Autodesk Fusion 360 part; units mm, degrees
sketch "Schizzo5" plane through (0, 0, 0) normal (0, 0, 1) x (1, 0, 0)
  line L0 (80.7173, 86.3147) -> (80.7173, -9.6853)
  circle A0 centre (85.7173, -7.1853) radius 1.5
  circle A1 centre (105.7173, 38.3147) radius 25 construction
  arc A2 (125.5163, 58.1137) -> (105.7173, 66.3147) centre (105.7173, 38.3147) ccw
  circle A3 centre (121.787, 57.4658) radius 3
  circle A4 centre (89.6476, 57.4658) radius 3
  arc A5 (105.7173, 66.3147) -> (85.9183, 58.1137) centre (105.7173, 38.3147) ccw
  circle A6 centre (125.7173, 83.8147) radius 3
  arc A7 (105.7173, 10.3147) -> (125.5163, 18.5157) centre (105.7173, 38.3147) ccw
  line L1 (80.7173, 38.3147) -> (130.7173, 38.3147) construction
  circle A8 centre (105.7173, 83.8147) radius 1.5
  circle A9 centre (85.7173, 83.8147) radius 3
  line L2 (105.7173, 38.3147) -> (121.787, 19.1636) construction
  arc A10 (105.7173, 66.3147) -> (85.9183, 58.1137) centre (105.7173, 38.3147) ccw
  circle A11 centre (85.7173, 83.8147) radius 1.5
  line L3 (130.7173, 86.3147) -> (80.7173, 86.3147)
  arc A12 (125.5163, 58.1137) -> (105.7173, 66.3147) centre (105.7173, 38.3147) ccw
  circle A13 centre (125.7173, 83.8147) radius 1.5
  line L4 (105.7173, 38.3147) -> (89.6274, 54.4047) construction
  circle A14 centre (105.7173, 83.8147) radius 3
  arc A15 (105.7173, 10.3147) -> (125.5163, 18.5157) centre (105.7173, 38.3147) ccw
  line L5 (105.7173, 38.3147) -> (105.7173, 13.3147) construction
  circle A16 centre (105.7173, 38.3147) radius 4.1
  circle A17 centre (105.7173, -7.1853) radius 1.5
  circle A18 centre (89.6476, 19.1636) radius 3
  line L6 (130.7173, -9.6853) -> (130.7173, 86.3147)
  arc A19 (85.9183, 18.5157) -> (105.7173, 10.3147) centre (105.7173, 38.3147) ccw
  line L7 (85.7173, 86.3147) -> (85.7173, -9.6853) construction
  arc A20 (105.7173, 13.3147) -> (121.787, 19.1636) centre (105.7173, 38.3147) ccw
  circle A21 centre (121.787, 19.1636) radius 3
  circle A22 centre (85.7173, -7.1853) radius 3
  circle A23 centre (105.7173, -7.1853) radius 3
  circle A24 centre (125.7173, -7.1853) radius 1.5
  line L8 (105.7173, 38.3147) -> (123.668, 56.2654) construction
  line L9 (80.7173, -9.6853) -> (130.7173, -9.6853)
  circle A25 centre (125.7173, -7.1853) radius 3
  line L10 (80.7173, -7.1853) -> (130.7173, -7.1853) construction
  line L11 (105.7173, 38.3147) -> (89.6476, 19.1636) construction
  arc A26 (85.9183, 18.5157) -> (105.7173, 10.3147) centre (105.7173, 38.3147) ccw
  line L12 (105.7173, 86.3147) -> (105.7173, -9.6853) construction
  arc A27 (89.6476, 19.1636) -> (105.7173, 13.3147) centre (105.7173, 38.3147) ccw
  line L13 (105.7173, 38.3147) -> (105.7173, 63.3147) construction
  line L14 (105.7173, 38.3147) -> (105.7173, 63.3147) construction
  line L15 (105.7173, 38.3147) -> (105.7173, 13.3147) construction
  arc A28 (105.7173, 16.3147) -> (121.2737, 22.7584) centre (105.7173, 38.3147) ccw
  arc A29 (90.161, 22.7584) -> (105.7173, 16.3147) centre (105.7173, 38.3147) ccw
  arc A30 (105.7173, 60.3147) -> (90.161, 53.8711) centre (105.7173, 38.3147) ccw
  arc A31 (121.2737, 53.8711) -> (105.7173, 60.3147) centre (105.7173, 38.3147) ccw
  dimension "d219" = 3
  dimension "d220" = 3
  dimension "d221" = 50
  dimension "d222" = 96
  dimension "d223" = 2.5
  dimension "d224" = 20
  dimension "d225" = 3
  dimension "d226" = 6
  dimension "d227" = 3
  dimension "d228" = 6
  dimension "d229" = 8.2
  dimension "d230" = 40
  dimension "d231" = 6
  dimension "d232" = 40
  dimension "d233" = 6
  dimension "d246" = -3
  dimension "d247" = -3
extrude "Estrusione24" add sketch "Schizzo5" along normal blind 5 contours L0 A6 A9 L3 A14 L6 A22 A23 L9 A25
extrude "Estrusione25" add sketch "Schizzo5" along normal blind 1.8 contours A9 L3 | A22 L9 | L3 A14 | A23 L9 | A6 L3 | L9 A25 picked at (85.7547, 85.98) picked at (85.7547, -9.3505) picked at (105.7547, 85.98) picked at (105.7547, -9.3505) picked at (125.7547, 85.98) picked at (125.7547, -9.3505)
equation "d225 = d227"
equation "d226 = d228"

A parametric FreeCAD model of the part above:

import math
import FreeCAD as App
import Part
import Sketcher
from FreeCAD import Vector

doc = App.newDocument("Part")
body = doc.addObject("PartDesign::Body", "Body")

sketch1 = body.newObject("Sketcher::SketchObject", "Sketch")
sketch1.AttachmentSupport = (doc.getObject("XY_Plane"), [""])
sketch1.MapMode = "FlatFace"
sketch1.addGeometry(Part.LineSegment(Vector(84.1, 86.3, 0), Vector(80.7, 86.3, 0)), False)
sketch1.addGeometry(Part.LineSegment(Vector(80.7, 86.3, 0), Vector(80.7, -9.7, 0)), False)
sketch1.addGeometry(Part.LineSegment(Vector(80.7, -9.7, 0), Vector(84.1, -9.7, 0)), False)
sketch1.addGeometry(Part.ArcOfCircle(Part.Circle(Vector(85.7, -7.2, 0), Vector(0, 0, 1), 3), math.radians(-56), math.radians(236)), False)
sketch1.addGeometry(Part.LineSegment(Vector(87.4, -9.7, 0), Vector(104.1, -9.7, 0)), False)
sketch1.addGeometry(Part.ArcOfCircle(Part.Circle(Vector(105.7, -7.2, 0), Vector(0, 0, 1), 3), math.radians(-56), math.radians(236)), False)
sketch1.addGeometry(Part.LineSegment(Vector(107.4, -9.7, 0), Vector(124.1, -9.7, 0)), False)
sketch1.addGeometry(Part.ArcOfCircle(Part.Circle(Vector(125.7, -7.2, 0), Vector(0, 0, 1), 3), math.radians(-56), math.radians(236)), False)
sketch1.addGeometry(Part.LineSegment(Vector(127.4, -9.7, 0), Vector(130.7, -9.7, 0)), False)
sketch1.addGeometry(Part.LineSegment(Vector(130.7, -9.7, 0), Vector(130.7, 86.3, 0)), False)
sketch1.addGeometry(Part.LineSegment(Vector(130.7, 86.3, 0), Vector(127.4, 86.3, 0)), False)
sketch1.addGeometry(Part.ArcOfCircle(Part.Circle(Vector(125.7, 83.8, 0), Vector(0, 0, 1), 3), math.radians(124), math.radians(416)), False)
sketch1.addGeometry(Part.LineSegment(Vector(124.1, 86.3, 0), Vector(107.4, 86.3, 0)), False)
sketch1.addGeometry(Part.ArcOfCircle(Part.Circle(Vector(105.7, 83.8, 0), Vector(0, 0, 1), 3), math.radians(124), math.radians(416)), False)
sketch1.addGeometry(Part.LineSegment(Vector(104.1, 86.3, 0), Vector(87.4, 86.3, 0)), False)
sketch1.addGeometry(Part.ArcOfCircle(Part.Circle(Vector(85.7, 83.8, 0), Vector(0, 0, 1), 3), math.radians(124), math.radians(416)), False)
sketch1.addGeometry(Part.ArcOfCircle(Part.Circle(Vector(105.7, 38.3, 0), Vector(0, 0, 1), 28), math.radians(-90), math.radians(-50)), False)
sketch1.addGeometry(Part.ArcOfCircle(Part.Circle(Vector(105.7, 38.3, 0), Vector(0, 0, 1), 28), math.radians(-130), math.radians(-90)), False)
sketch1.addGeometry(Part.ArcOfCircle(Part.Circle(Vector(89.6, 19.2, 0), Vector(0, 0, 1), 3), math.radians(50), math.radians(230)), False)
sketch1.addGeometry(Part.ArcOfCircle(Part.Circle(Vector(105.7, 38.3, 0), Vector(0, 0, 1), 22), math.radians(-130), math.radians(-90)), False)
sketch1.addGeometry(Part.ArcOfCircle(Part.Circle(Vector(105.7, 38.3, 0), Vector(0, 0, 1), 22), math.radians(-90), math.radians(-50)), False)
sketch1.addGeometry(Part.ArcOfCircle(Part.Circle(Vector(121.8, 19.2, 0), Vector(0, 0, 1), 3), math.radians(-50), math.radians(130)), False)
sketch1.addGeometry(Part.Circle(Vector(105.7, 38.3, 0), Vector(0, 0, 1), 4.1), False)
sketch1.addGeometry(Part.ArcOfCircle(Part.Circle(Vector(105.7, 38.3, 0), Vector(0, 0, 1), 28), math.radians(50), math.radians(90)), False)
sketch1.addGeometry(Part.ArcOfCircle(Part.Circle(Vector(121.8, 57.5, 0), Vector(0, 0, 1), 3), math.radians(-130), math.radians(50)), False)
sketch1.addGeometry(Part.ArcOfCircle(Part.Circle(Vector(105.7, 38.3, 0), Vector(0, 0, 1), 22), math.radians(50), math.radians(90)), False)
sketch1.addGeometry(Part.ArcOfCircle(Part.Circle(Vector(105.7, 38.3, 0), Vector(0, 0, 1), 22), math.radians(90), math.radians(130)), False)
sketch1.addGeometry(Part.ArcOfCircle(Part.Circle(Vector(89.6, 57.5, 0), Vector(0, 0, 1), 3), math.radians(130), math.radians(310)), False)
sketch1.addGeometry(Part.ArcOfCircle(Part.Circle(Vector(105.7, 38.3, 0), Vector(0, 0, 1), 28), math.radians(90), math.radians(130)), False)
sketch1.addConstraint(Sketcher.Constraint("Coincident", 0, 2, 1, 1))
sketch1.addConstraint(Sketcher.Constraint("Coincident", 1, 2, 2, 1))
sketch1.addConstraint(Sketcher.Constraint("Coincident", 2, 2, 3, 2))
sketch1.addConstraint(Sketcher.Constraint("Coincident", 3, 1, 4, 1))
sketch1.addConstraint(Sketcher.Constraint("Coincident", 4, 2, 5, 2))
sketch1.addConstraint(Sketcher.Constraint("Coincident", 5, 1, 6, 1))
sketch1.addConstraint(Sketcher.Constraint("Coincident", 6, 2, 7, 2))
sketch1.addConstraint(Sketcher.Constraint("Coincident", 7, 1, 8, 1))
sketch1.addConstraint(Sketcher.Constraint("Coincident", 8, 2, 9, 1))
sketch1.addConstraint(Sketcher.Constraint("Coincident", 9, 2, 10, 1))
sketch1.addConstraint(Sketcher.Constraint("Coincident", 10, 2, 11, 2))
sketch1.addConstraint(Sketcher.Constraint("Coincident", 11, 1, 12, 1))
sketch1.addConstraint(Sketcher.Constraint("Coincident", 12, 2, 13, 2))
sketch1.addConstraint(Sketcher.Constraint("Coincident", 13, 1, 14, 1))
sketch1.addConstraint(Sketcher.Constraint("Coincident", 14, 2, 15, 2))
sketch1.addConstraint(Sketcher.Constraint("Coincident", 15, 1, 0, 1))
sketch1.addConstraint(Sketcher.Constraint("Tangent", 16, 1, 17, 2))
sketch1.addConstraint(Sketcher.Constraint("Tangent", 17, 1, 18, 2))
sketch1.addConstraint(Sketcher.Constraint("Tangent", 18, 1, 19, 1))
sketch1.addConstraint(Sketcher.Constraint("Tangent", 19, 2, 20, 1))
sketch1.addConstraint(Sketcher.Constraint("Tangent", 20, 2, 21, 2))
sketch1.addConstraint(Sketcher.Constraint("Tangent", 21, 1, 16, 2))
sketch1.addConstraint(Sketcher.Constraint("Tangent", 23, 1, 24, 2))
sketch1.addConstraint(Sketcher.Constraint("Tangent", 24, 1, 25, 1))
sketch1.addConstraint(Sketcher.Constraint("Tangent", 25, 2, 26, 1))
sketch1.addConstraint(Sketcher.Constraint("Tangent", 26, 2, 27, 2))
sketch1.addConstraint(Sketcher.Constraint("Tangent", 27, 1, 28, 2))
sketch1.addConstraint(Sketcher.Constraint("Tangent", 28, 1, 23, 2))
sketch1.addConstraint(Sketcher.Constraint("Horizontal", 0))
sketch1.addConstraint(Sketcher.Constraint("Vertical", 1))
sketch1.addConstraint(Sketcher.Constraint("Horizontal", 2))
sketch1.addConstraint(Sketcher.Constraint("Horizontal", 4))
sketch1.addConstraint(Sketcher.Constraint("Horizontal", 6))
sketch1.addConstraint(Sketcher.Constraint("Horizontal", 8))
sketch1.addConstraint(Sketcher.Constraint("Vertical", 9))
sketch1.addConstraint(Sketcher.Constraint("Horizontal", 10))
sketch1.addConstraint(Sketcher.Constraint("Horizontal", 12))
sketch1.addConstraint(Sketcher.Constraint("Horizontal", 14))
sketch1.addConstraint(Sketcher.Constraint("Coincident", 19, 3, 16, 3))
sketch1.addConstraint(Sketcher.Constraint("Coincident", 22, 3, 16, 3))
sketch1.addConstraint(Sketcher.Constraint("Coincident", 23, 3, 16, 3))
sketch1.addConstraint(Sketcher.Constraint("Coincident", 25, 3, 16, 3))
sketch1.addConstraint(Sketcher.Constraint("Equal", 3, 5))
sketch1.addConstraint(Sketcher.Constraint("Equal", 5, 7))
sketch1.addConstraint(Sketcher.Constraint("Equal", 7, 11))
sketch1.addConstraint(Sketcher.Constraint("Equal", 11, 13))
sketch1.addConstraint(Sketcher.Constraint("Equal", 13, 15))
sketch1.addConstraint(Sketcher.Constraint("Equal", 16, 17))
sketch1.addConstraint(Sketcher.Constraint("Equal", 15, 18))
sketch1.addConstraint(Sketcher.Constraint("Equal", 19, 20))
sketch1.addConstraint(Sketcher.Constraint("Equal", 17, 23))
sketch1.addConstraint(Sketcher.Constraint("Equal", 21, 24))
sketch1.addConstraint(Sketcher.Constraint("Equal", 25, 26))
sketch1.addConstraint(Sketcher.Constraint("Equal", 24, 27))
sketch1.addConstraint(Sketcher.Constraint("Horizontal", 3, 3, 5, 3))
sketch1.addConstraint(Sketcher.Constraint("Horizontal", 5, 3, 7, 3))
sketch1.addConstraint(Sketcher.Constraint("Horizontal", 11, 3, 13, 3))
sketch1.addConstraint(Sketcher.Constraint("Horizontal", 13, 3, 15, 3))
sketch1.addConstraint(Sketcher.Constraint("Horizontal", 18, 3, 21, 3))
sketch1.addConstraint(Sketcher.Constraint("Horizontal", 24, 3, 27, 3))
sketch1.addConstraint(Sketcher.Constraint("Horizontal", 2, 2, 3, 1))
sketch1.addConstraint(Sketcher.Constraint("Horizontal", 4, 2, 5, 1))
sketch1.addConstraint(Sketcher.Constraint("Horizontal", 6, 2, 7, 1))
sketch1.addConstraint(Sketcher.Constraint("Horizontal", 0, 2, 9, 2))
sketch1.addConstraint(Sketcher.Constraint("Horizontal", 10, 2, 11, 1))
sketch1.addConstraint(Sketcher.Constraint("Horizontal", 12, 2, 13, 1))
sketch1.addConstraint(Sketcher.Constraint("Vertical", 7, 3, 11, 3))
sketch1.addConstraint(Sketcher.Constraint("Vertical", 5, 3, 13, 3))
sketch1.addConstraint(Sketcher.Constraint("Vertical", 3, 3, 15, 3))
sketch1.addConstraint(Sketcher.Constraint("Vertical", 13, 3, 16, 3))
sketch1.addConstraint(Sketcher.Constraint("Vertical", 21, 3, 24, 3))
sketch1.addConstraint(Sketcher.Constraint("Vertical", 7, 1, 10, 2))
sketch1.addConstraint(Sketcher.Constraint("Vertical", 28, 3, 16, 1))
sketch1.addConstraint(Sketcher.Constraint("Vertical", 16, 1, 19, 2))
sketch1.addConstraint(Sketcher.Constraint("Vertical", 19, 2, 25, 2))
sketch1.addConstraint(Sketcher.Constraint("Vertical", 25, 2, 28, 1))
sketch1.addConstraint(Sketcher.Constraint("Equal", 4, 6))
sketch1.addConstraint(Sketcher.Constraint("Equal", 2, 8))
sketch1.addConstraint(Sketcher.Constraint("Radius", 3, 3.0))
sketch1.addConstraint(Sketcher.Constraint("Diameter", 22, 8.2))
sketch1.addConstraint(Sketcher.Constraint("DistanceY", 1, 2, 1, 1, 96.0))
sketch1.addConstraint(Sketcher.Constraint("Radius", 16, 28.0))
sketch1.addConstraint(Sketcher.Constraint("DistanceX", 3, 3, 5, 3, 20.0))
sketch1.addConstraint(Sketcher.Constraint("DistanceX", 0, 2, 9, 2, 50.0))
sketch1.addConstraint(Sketcher.Constraint("DistanceY", 4, 2, 16, 1, 20.0))
sketch1.addConstraint(Sketcher.Constraint("DistanceY", 15, 3, 0, 2, 2.5))
sketch1.addConstraint(Sketcher.Constraint("DistanceX", -1, 1, 21, 3, 121.787))
sketch1.addConstraint(Sketcher.Constraint("DistanceX", -1, 1, 2, 2, 84.059))
sketch1.addConstraint(Sketcher.Constraint("DistanceY", -1, 1, 23, 1, 59.764))
pad1 = body.newObject("PartDesign::Pad", "Pad")
pad1.Profile = sketch1
pad1.Length = 5

sketch2 = body.newObject("Sketcher::SketchObject", "Sketch001")
sketch2.AttachmentSupport = (doc.getObject("XY_Plane"), [""])
sketch2.MapMode = "FlatFace"
sketch2.addGeometry(Part.LineSegment(Vector(87.4, 86.3, 0), Vector(84.1, 86.3, 0)), False)
sketch2.addGeometry(Part.ArcOfCircle(Part.Circle(Vector(85.7, 83.8, 0), Vector(0, 0, 1), 3), math.radians(124), math.radians(416)), False)
sketch2.addGeometry(Part.Circle(Vector(85.7, 83.8, 0), Vector(0, 0, 1), 1.5), False)
sketch2.addGeometry(Part.ArcOfCircle(Part.Circle(Vector(85.7, -7.2, 0), Vector(0, 0, 1), 3), math.radians(-56), math.radians(236)), False)
sketch2.addGeometry(Part.LineSegment(Vector(84.1, -9.7, 0), Vector(87.4, -9.7, 0)), False)
sketch2.addGeometry(Part.Circle(Vector(85.7, -7.2, 0), Vector(0, 0, 1), 1.5), False)
sketch2.addGeometry(Part.LineSegment(Vector(107.4, 86.3, 0), Vector(104.1, 86.3, 0)), False)
sketch2.addGeometry(Part.ArcOfCircle(Part.Circle(Vector(105.7, 83.8, 0), Vector(0, 0, 1), 3), math.radians(124), math.radians(416)), False)
sketch2.addGeometry(Part.Circle(Vector(105.7, 83.8, 0), Vector(0, 0, 1), 1.5), False)
sketch2.addGeometry(Part.ArcOfCircle(Part.Circle(Vector(105.7, -7.2, 0), Vector(0, 0, 1), 3), math.radians(-56), math.radians(236)), False)
sketch2.addGeometry(Part.LineSegment(Vector(104.1, -9.7, 0), Vector(107.4, -9.7, 0)), False)
sketch2.addGeometry(Part.Circle(Vector(105.7, -7.2, 0), Vector(0, 0, 1), 1.5), False)
sketch2.addGeometry(Part.LineSegment(Vector(127.4, 86.3, 0), Vector(124.1, 86.3, 0)), False)
sketch2.addGeometry(Part.ArcOfCircle(Part.Circle(Vector(125.7, 83.8, 0), Vector(0, 0, 1), 3), math.radians(124), math.radians(416)), False)
sketch2.addGeometry(Part.Circle(Vector(125.7, 83.8, 0), Vector(0, 0, 1), 1.5), False)
sketch2.addGeometry(Part.ArcOfCircle(Part.Circle(Vector(125.7, -7.2, 0), Vector(0, 0, 1), 3), math.radians(-56), math.radians(236)), False)
sketch2.addGeometry(Part.LineSegment(Vector(124.1, -9.7, 0), Vector(127.4, -9.7, 0)), False)
sketch2.addGeometry(Part.Circle(Vector(125.7, -7.2, 0), Vector(0, 0, 1), 1.5), False)
sketch2.addConstraint(Sketcher.Constraint("Coincident", 0, 1, 1, 2))
sketch2.addConstraint(Sketcher.Constraint("Coincident", 1, 1, 0, 2))
sketch2.addConstraint(Sketcher.Constraint("Coincident", 3, 1, 4, 2))
sketch2.addConstraint(Sketcher.Constraint("Coincident", 4, 1, 3, 2))
sketch2.addConstraint(Sketcher.Constraint("Coincident", 6, 1, 7, 2))
sketch2.addConstraint(Sketcher.Constraint("Coincident", 7, 1, 6, 2))
sketch2.addConstraint(Sketcher.Constraint("Coincident", 9, 1, 10, 2))
sketch2.addConstraint(Sketcher.Constraint("Coincident", 10, 1, 9, 2))
sketch2.addConstraint(Sketcher.Constraint("Coincident", 12, 1, 13, 2))
sketch2.addConstraint(Sketcher.Constraint("Coincident", 13, 1, 12, 2))
sketch2.addConstraint(Sketcher.Constraint("Coincident", 15, 1, 16, 2))
sketch2.addConstraint(Sketcher.Constraint("Coincident", 16, 1, 15, 2))
sketch2.addConstraint(Sketcher.Constraint("Horizontal", 0))
sketch2.addConstraint(Sketcher.Constraint("Horizontal", 4))
sketch2.addConstraint(Sketcher.Constraint("Horizontal", 6))
sketch2.addConstraint(Sketcher.Constraint("Horizontal", 10))
sketch2.addConstraint(Sketcher.Constraint("Horizontal", 12))
sketch2.addConstraint(Sketcher.Constraint("Horizontal", 16))
sketch2.addConstraint(Sketcher.Constraint("Coincident", 2, 3, 1, 3))
sketch2.addConstraint(Sketcher.Constraint("Coincident", 5, 3, 3, 3))
sketch2.addConstraint(Sketcher.Constraint("Coincident", 8, 3, 7, 3))
sketch2.addConstraint(Sketcher.Constraint("Coincident", 11, 3, 9, 3))
sketch2.addConstraint(Sketcher.Constraint("Coincident", 14, 3, 13, 3))
sketch2.addConstraint(Sketcher.Constraint("Coincident", 17, 3, 15, 3))
sketch2.addConstraint(Sketcher.Constraint("Equal", 1, 3))
sketch2.addConstraint(Sketcher.Constraint("Equal", 2, 5))
sketch2.addConstraint(Sketcher.Constraint("Equal", 3, 7))
sketch2.addConstraint(Sketcher.Constraint("Equal", 5, 8))
sketch2.addConstraint(Sketcher.Constraint("Equal", 7, 9))
sketch2.addConstraint(Sketcher.Constraint("Equal", 8, 11))
sketch2.addConstraint(Sketcher.Constraint("Equal", 9, 13))
sketch2.addConstraint(Sketcher.Constraint("Equal", 11, 14))
sketch2.addConstraint(Sketcher.Constraint("Equal", 13, 15))
sketch2.addConstraint(Sketcher.Constraint("Equal", 14, 17))
sketch2.addConstraint(Sketcher.Constraint("Horizontal", 2, 3, 7, 3))
sketch2.addConstraint(Sketcher.Constraint("Horizontal", 5, 3, 9, 3))
sketch2.addConstraint(Sketcher.Constraint("Horizontal", 8, 3, 13, 3))
sketch2.addConstraint(Sketcher.Constraint("Horizontal", 11, 3, 15, 3))
sketch2.addConstraint(Sketcher.Constraint("Horizontal", 1, 1, 6, 1))
sketch2.addConstraint(Sketcher.Constraint("Horizontal", 4, 1, 9, 1))
sketch2.addConstraint(Sketcher.Constraint("Horizontal", 7, 1, 12, 1))
sketch2.addConstraint(Sketcher.Constraint("Horizontal", 10, 1, 15, 1))
sketch2.addConstraint(Sketcher.Constraint("Vertical", 2, 3, 3, 3))
sketch2.addConstraint(Sketcher.Constraint("Vertical", 8, 3, 9, 3))
sketch2.addConstraint(Sketcher.Constraint("Vertical", 14, 3, 15, 3))
sketch2.addConstraint(Sketcher.Constraint("Vertical", 0, 1, 3, 1))
sketch2.addConstraint(Sketcher.Constraint("Diameter", 2, 3.0))
sketch2.addConstraint(Sketcher.Constraint("Radius", 1, 3.0))
sketch2.addConstraint(Sketcher.Constraint("DistanceX", 1, 3, 7, 3, 20.0))
sketch2.addConstraint(Sketcher.Constraint("DistanceX", 7, 3, 13, 3, 20.0))
sketch2.addConstraint(Sketcher.Constraint("DistanceY", 1, 3, 0, 1, 2.5))
sketch2.addConstraint(Sketcher.Constraint("DistanceY", 3, 3, 1, 3, 91.0))
sketch2.addConstraint(Sketcher.Constraint("DistanceX", -1, 1, 1, 1, 84.059))
sketch2.addConstraint(Sketcher.Constraint("DistanceY", -1, 1, 1, 3, 83.8147))
pad2 = body.newObject("PartDesign::Pad", "Pad001")
pad2.Profile = sketch2
pad2.Length = 1.8

doc.recompute()
